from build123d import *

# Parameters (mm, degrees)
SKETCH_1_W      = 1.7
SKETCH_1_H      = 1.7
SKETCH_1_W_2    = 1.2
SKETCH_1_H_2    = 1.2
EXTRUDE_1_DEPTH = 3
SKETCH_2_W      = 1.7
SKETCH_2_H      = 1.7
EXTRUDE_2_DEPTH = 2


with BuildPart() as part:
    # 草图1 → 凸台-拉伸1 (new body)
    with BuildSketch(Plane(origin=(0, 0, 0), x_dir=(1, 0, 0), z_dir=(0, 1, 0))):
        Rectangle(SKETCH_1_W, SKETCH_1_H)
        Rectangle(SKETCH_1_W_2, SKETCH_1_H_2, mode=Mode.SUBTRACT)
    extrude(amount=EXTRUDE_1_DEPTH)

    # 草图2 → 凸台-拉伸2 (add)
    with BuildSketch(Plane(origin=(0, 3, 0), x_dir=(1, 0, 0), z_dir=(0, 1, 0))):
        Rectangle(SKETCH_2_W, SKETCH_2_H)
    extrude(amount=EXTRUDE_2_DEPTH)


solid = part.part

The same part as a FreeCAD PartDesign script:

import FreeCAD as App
import Part
import Sketcher

V = App.Vector
Q = App.Units.Quantity


def add_polygon(sketch, points):
    """Adds a closed chain of lines whose ends are joined by coincident constraints."""
    first, n = sketch.GeometryCount, len(points)
    for a, b in zip(points, points[1:] + points[:1]):
        sketch.addGeometry(Part.LineSegment(App.Vector(*a, 0), App.Vector(*b, 0)), False)
    for i in range(n):
        sketch.addConstraint(Sketcher.Constraint("Coincident", first + i, 2, first + (i + 1) % n, 1))

doc = App.newDocument("Part")
body = doc.addObject("PartDesign::Body", "Body")

sketch1 = body.newObject("Sketcher::SketchObject", "Sketch")
sketch1.AttachmentSupport = (doc.getObject("XZ_Plane"), [""])
sketch1.MapMode = "FlatFace"
add_polygon(sketch1, [(-0.85, -0.85), (-0.85, 0.85), (0.85, 0.85), (0.85, -0.85)])
add_polygon(sketch1, [(0.6, 0.6), (-0.6, 0.6), (-0.6, -0.6), (0.6, -0.6)])
sketch1.addConstraint(Sketcher.Constraint("Vertical", 0))
sketch1.addConstraint(Sketcher.Constraint("Horizontal", 1))
sketch1.addConstraint(Sketcher.Constraint("Vertical", 2))
sketch1.addConstraint(Sketcher.Constraint("Horizontal", 3))
sketch1.addConstraint(Sketcher.Constraint("Horizontal", 4))
sketch1.addConstraint(Sketcher.Constraint("Vertical", 5))
sketch1.addConstraint(Sketcher.Constraint("Horizontal", 6))
sketch1.addConstraint(Sketcher.Constraint("Vertical", 7))
sketch1.addConstraint(Sketcher.Constraint("Symmetric", 0, 2, 2, 2, -1, 1))
sketch1.addConstraint(Sketcher.Constraint("Symmetric", 4, 2, 6, 2, -1, 1))
sketch1.addConstraint(Sketcher.Constraint("Equal", 3, 0))
sketch1.addConstraint(Sketcher.Constraint("Equal", 6, 5))
sketch1.addConstraint(Sketcher.Constraint("DistanceX", 1, 1, 1, 2, Q("1.7 mm")))
sketch1.addConstraint(Sketcher.Constraint("DistanceX", 4, 2, 4, 1, Q("1.2 mm")))
pad1 = body.newObject("PartDesign::Pad", "Pad")
pad1.Profile = sketch1
pad1.Length = 3
pad1.Reversed = True

sketch2 = body.newObject("Sketcher::SketchObject", "Sketch001")
sketch2.AttachmentSupport = (doc.getObject("XZ_Plane"), [""])
sketch2.MapMode = "FlatFace"
sketch2.AttachmentOffset = App.Placement(V(0, 0, -3), App.Rotation())
add_polygon(sketch2, [(-0.85, -0.85), (-0.85, 0.85), (0.85, 0.85), (0.85, -0.85)])
sketch2.addConstraint(Sketcher.Constraint("Vertical", 0))
sketch2.addConstraint(Sketcher.Constraint("Horizontal", 1))
sketch2.addConstraint(Sketcher.Constraint("Vertical", 2))
sketch2.addConstraint(Sketcher.Constraint("Horizontal", 3))
sketch2.addConstraint(Sketcher.Constraint("Symmetric", 0, 2, 2, 2, -1, 1))
sketch2.addConstraint(Sketcher.Constraint("Equal", 3, 0))
sketch2.addConstraint(Sketcher.Constraint("DistanceX", 1, 1, 1, 2, Q("1.7 mm")))
pad2 = body.newObject("PartDesign::Pad", "Pad001")
pad2.Profile = sketch2
pad2.Length = 2
pad2.Reversed = True

doc.recompute()
